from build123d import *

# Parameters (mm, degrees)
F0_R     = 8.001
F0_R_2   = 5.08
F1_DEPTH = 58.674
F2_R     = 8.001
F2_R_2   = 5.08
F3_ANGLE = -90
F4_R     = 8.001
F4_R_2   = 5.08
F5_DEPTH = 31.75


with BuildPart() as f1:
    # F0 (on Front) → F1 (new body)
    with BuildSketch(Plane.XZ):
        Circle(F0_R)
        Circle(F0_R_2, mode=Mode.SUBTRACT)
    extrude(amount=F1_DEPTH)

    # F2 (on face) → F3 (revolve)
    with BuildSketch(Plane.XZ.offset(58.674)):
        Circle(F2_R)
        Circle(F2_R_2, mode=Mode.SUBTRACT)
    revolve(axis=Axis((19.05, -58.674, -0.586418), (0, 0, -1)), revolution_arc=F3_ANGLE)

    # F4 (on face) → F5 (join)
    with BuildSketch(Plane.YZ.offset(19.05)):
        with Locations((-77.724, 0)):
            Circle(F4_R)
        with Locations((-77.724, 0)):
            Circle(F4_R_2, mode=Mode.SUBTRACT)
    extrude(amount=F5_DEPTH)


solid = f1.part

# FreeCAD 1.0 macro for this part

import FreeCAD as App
import Part
import Sketcher

V = App.Vector
Q = App.Units.Quantity

doc = App.newDocument("Part")
params = doc.addObject("Spreadsheet::Sheet", "Params")
for row, (alias, value) in enumerate([
    ("sketch1_diameter", "0.4 in"),
    ("sketch1_diameter2", "0.63 in"),
    ("pad1_length", "2.31 in"),
    ("sketch2_diameter", "0.4 in"),
    ("sketch2_diameter2", "0.63 in"),
    ("revolution_angle", "90 deg"),
    ("sketch3_diameter", "0.4 in"),
    ("sketch3_diameter2", "0.63 in"),
    ("pad2_length", "1.25 in"),
], start=1):
    params.set(f"A{row}", alias)
    params.set(f"B{row}", "=" + value)
    params.setAlias(f"B{row}", alias)

body = doc.addObject("PartDesign::Body", "Body")

sketch1 = body.newObject("Sketcher::SketchObject", "Sketch")
sketch1.AttachmentSupport = (doc.getObject("XZ_Plane"), [""])
sketch1.MapMode = "FlatFace"
sketch1.addGeometry([
    Part.Circle(V(0, 0, 0), V(0, 0, 1), 8),
    Part.Circle(V(0, 0, 0), V(0, 0, 1), 5),
], False)
sketch1.addConstraint([
    Sketcher.Constraint("Coincident", 0, 3, -1, 1),
    Sketcher.Constraint("Coincident", 1, 3, -1, 1),
    Sketcher.Constraint("Diameter", 1, Q("0.4 in")),
    Sketcher.Constraint("Diameter", 0, Q("0.63 in")),
])
sketch1.setExpression("Constraints[2]", "Params.sketch1_diameter")
sketch1.setExpression("Constraints[3]", "Params.sketch1_diameter2")
pad1 = body.newObject("PartDesign::Pad", "Pad")
pad1.Profile = sketch1
pad1.setExpression("Length", "Params.pad1_length")

sketch2 = body.newObject("Sketcher::SketchObject", "Sketch001")
sketch2.AttachmentSupport = (doc.getObject("XZ_Plane"), [""])
sketch2.MapMode = "FlatFace"
sketch2.AttachmentOffset = App.Placement(V(0, 0, 2.31 * 25.4), App.Rotation())
sketch2.addGeometry([
    Part.Circle(V(0, 0, 0), V(0, 0, 1), 8),
    Part.Circle(V(0, 0, 0), V(0, 0, 1), 5),
], False)
sketch2.addGeometry(Part.LineSegment(V(19, 0, 0), V(19, -10, 0)), True)
sketch2.addConstraint([
    Sketcher.Constraint("Vertical", 2),
    Sketcher.Constraint("Coincident", 0, 3, -1, 1),
    Sketcher.Constraint("Coincident", 1, 3, -1, 1),
    Sketcher.Constraint("PointOnObject", 2, 1, -1),
    Sketcher.Constraint("Diameter", 1, Q("0.4 in")),
    Sketcher.Constraint("Diameter", 0, Q("0.63 in")),
    Sketcher.Constraint("DistanceX", -1, 1, 2, 1, Q("0.75 in")),
    Sketcher.Constraint("DistanceY", 2, 2, 2, 1, Q("10 mm")),
])
sketch2.setExpression("Constraints[4]", "Params.sketch2_diameter")
sketch2.setExpression("Constraints[5]", "Params.sketch2_diameter2")
revolution = body.newObject("PartDesign::Revolution", "Revolution")
revolution.Profile = sketch2
revolution.ReferenceAxis = (sketch2, ["Axis0"])
revolution.setExpression("Angle", "Params.revolution_angle")
revolution.Reversed = True

sketch3 = body.newObject("Sketcher::SketchObject", "Sketch002")
sketch3.AttachmentSupport = (doc.getObject("YZ_Plane"), [""])
sketch3.MapMode = "FlatFace"
sketch3.AttachmentOffset = App.Placement(V(0, 0, 0.75 * 25.4), App.Rotation())
sketch3.addGeometry([
    Part.Circle(V(-78, 0, 0), V(0, 0, 1), 8),
    Part.Circle(V(-78, 0, 0), V(0, 0, 1), 5),
], False)
sketch3.addConstraint([
    Sketcher.Constraint("Coincident", 1, 3, 0, 3),
    Sketcher.Constraint("PointOnObject", 0, 3, -1),
    Sketcher.Constraint("Diameter", 1, Q("0.4 in")),
    Sketcher.Constraint("Diameter", 0, Q("0.63 in")),
    Sketcher.Constraint("DistanceX", 0, 3, -1, 1, Q("3.06 in")),
])
sketch3.setExpression("Constraints[2]", "Params.sketch3_diameter")
sketch3.setExpression("Constraints[3]", "Params.sketch3_diameter2")
pad2 = body.newObject("PartDesign::Pad", "Pad001")
pad2.Profile = sketch3
pad2.setExpression("Length", "Params.pad2_length")

doc.recompute()
